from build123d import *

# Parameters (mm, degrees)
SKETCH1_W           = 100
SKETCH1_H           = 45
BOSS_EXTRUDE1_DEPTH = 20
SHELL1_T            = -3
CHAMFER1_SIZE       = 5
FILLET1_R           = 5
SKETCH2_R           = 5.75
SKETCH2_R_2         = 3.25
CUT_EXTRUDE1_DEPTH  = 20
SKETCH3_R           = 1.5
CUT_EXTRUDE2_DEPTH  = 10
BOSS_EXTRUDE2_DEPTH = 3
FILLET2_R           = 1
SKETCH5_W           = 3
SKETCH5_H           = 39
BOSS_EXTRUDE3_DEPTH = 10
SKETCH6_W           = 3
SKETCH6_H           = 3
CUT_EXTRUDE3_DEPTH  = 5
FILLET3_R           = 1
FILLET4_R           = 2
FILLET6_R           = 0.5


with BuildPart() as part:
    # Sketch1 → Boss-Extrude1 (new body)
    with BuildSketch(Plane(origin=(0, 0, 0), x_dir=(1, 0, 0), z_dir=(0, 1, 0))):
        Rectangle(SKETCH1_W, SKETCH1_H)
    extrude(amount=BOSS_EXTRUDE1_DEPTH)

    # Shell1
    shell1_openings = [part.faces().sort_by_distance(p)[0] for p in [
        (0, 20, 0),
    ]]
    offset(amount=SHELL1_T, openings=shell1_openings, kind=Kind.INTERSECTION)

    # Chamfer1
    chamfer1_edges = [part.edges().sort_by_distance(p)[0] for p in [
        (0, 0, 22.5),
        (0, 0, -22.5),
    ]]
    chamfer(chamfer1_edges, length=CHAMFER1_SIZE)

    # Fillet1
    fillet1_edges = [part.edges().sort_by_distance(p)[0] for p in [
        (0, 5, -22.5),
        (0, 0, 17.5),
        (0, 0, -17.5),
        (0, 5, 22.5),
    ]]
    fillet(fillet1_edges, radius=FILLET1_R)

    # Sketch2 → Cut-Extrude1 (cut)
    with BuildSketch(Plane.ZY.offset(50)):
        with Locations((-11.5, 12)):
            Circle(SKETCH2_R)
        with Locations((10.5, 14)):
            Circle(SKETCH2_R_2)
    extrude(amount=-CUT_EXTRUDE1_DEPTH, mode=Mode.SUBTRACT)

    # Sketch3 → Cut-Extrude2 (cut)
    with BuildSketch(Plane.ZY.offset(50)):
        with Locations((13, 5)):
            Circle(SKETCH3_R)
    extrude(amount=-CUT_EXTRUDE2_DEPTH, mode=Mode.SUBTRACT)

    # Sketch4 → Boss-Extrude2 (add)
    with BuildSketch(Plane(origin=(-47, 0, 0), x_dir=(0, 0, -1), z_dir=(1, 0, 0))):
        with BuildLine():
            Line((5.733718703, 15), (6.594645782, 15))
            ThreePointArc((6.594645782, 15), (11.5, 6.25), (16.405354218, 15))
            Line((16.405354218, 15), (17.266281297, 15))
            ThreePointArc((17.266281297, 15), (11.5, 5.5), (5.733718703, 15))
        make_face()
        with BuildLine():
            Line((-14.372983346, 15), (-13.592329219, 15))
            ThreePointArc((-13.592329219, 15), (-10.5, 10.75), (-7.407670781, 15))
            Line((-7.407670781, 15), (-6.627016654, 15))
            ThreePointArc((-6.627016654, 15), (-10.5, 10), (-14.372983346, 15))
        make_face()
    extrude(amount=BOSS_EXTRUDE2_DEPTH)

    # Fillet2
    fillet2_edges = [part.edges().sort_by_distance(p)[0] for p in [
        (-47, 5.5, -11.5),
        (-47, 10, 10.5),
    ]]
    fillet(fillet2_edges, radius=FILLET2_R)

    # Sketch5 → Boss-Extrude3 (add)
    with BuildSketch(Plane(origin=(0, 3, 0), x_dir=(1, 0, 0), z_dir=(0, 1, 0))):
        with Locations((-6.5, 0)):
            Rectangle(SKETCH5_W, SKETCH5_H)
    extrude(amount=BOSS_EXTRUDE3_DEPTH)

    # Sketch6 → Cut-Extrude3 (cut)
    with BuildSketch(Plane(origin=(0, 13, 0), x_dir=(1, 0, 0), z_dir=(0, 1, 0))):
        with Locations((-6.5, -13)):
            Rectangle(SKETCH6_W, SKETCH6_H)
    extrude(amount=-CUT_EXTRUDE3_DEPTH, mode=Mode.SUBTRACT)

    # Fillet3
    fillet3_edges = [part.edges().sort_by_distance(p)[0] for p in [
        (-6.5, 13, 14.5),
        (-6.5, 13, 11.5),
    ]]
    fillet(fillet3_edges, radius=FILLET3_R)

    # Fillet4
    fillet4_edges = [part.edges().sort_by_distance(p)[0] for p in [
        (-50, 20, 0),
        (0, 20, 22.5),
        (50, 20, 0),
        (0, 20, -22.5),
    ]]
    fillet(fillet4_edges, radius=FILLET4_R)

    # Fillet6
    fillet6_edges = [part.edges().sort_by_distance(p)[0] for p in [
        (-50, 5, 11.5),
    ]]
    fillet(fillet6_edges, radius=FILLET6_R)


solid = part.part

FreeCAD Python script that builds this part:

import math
import FreeCAD as App
import Part
import Sketcher
Q = App.Units.Quantity


def edges_at(feature, points):
    """Names of the edges that pass closest to the given points."""
    edges = feature.Shape.Edges
    near = lambda p: min(range(len(edges)), key=lambda i: edges[i].distToShape(Part.Vertex(*p))[0])
    return sorted({f"Edge{near(p) + 1}" for p in points})


def faces_at(feature, points):
    """Names of the faces that lie closest to the given points."""
    faces = feature.Shape.Faces
    near = lambda p: min(range(len(faces)), key=lambda i: faces[i].distToShape(Part.Vertex(*p))[0])
    return sorted({f"Face{near(p) + 1}" for p in points})

doc = App.newDocument("Part")
params = doc.addObject("Spreadsheet::Sheet", "Params")
for row, (alias, value) in enumerate([
    ("sketch1_width", "100 mm"),
    ("sketch1_height", "45 mm"),
    ("pad1_length", "20 mm"),
    ("thickness_wall", "3 mm"),
    ("chamfer_size", "5 mm"),
    ("fillet_radius", "5 mm"),
    ("sketch2_diameter", "11.5 mm"),
    ("sketch2_diameter2", "6.5 mm"),
    ("pocket1_length", "20 mm"),
    ("sketch3_diameter", "3 mm"),
    ("pocket2_length", "10 mm"),
    ("sketch4_radius", "4 mm"),
    ("sketch4_radius2", "6.5 mm"),
    ("sketch4_radius3", "5.75 mm"),
    ("sketch4_radius4", "3.25 mm"),
    ("pad2_length", "3 mm"),
    ("fillet2_radius", "1 mm"),
    ("sketch5_width", "3 mm"),
    ("sketch5_height", "39 mm"),
    ("pad3_length", "10 mm"),
    ("sketch6_width", "3 mm"),
    ("pocket3_length", "5 mm"),
    ("fillet3_radius", "1 mm"),
    ("fillet4_radius", "2 mm"),
    ("fillet5_radius", "0.5 mm"),
], start=1):
    params.set(f"A{row}", alias)
    params.set(f"B{row}", "=" + value)
    params.setAlias(f"B{row}", alias)

body = doc.addObject("PartDesign::Body", "Body")

# Sketch on XZ plane
sketch1 = body.newObject("Sketcher::SketchObject", "Sketch")
sketch1.AttachmentSupport = (doc.getObject("XZ_Plane"), [""])
sketch1.MapMode = "FlatFace"
sketch1.addGeometry([
    Part.LineSegment(App.Vector(-50, -22, 0), App.Vector(-50, 22, 0)),
    Part.LineSegment(App.Vector(-50, 22, 0), App.Vector(50, 22, 0)),
    Part.LineSegment(App.Vector(50, 22, 0), App.Vector(50, -22, 0)),
    Part.LineSegment(App.Vector(50, -22, 0), App.Vector(-50, -22, 0)),
], False)
sketch1.addConstraint([
    Sketcher.Constraint("Coincident", 0, 2, 1, 1),
    Sketcher.Constraint("Coincident", 1, 2, 2, 1),
    Sketcher.Constraint("Coincident", 2, 2, 3, 1),
    Sketcher.Constraint("Coincident", 3, 2, 0, 1),
    Sketcher.Constraint("Vertical", 0),
    Sketcher.Constraint("Horizontal", 1),
    Sketcher.Constraint("Vertical", 2),
    Sketcher.Constraint("Horizontal", 3),
    Sketcher.Constraint("Symmetric", 0, 2, 2, 2, -1, 1),
    Sketcher.Constraint("DistanceX", 1, 1, 1, 2, Q("100 mm")),
    Sketcher.Constraint("DistanceY", 0, 1, 0, 2, Q("45 mm")),
])
sketch1.setExpression("Constraints[9]", "Params.sketch1_width")
sketch1.setExpression("Constraints[10]", "Params.sketch1_height")
pad1 = body.newObject("PartDesign::Pad", "Pad")
pad1.Profile = sketch1
pad1.setExpression("Length", "Params.pad1_length")
pad1.Reversed = True
doc.recompute()

thickness = body.newObject("PartDesign::Thickness", "Thickness")
thickness.Base = (pad1, faces_at(pad1, [(0, 20, 0)]))
thickness.setExpression("Value", "Params.thickness_wall")
thickness.Reversed = True
thickness.Join = "Intersection"
doc.recompute()

chamfer = body.newObject("PartDesign::Chamfer", "Chamfer")
chamfer.Base = (thickness, edges_at(thickness, [(0, 0, 22.5), (0, 0, -22.5)]))
chamfer.setExpression("Size", "Params.chamfer_size")
doc.recompute()

fillet = body.newObject("PartDesign::Fillet", "Fillet")
fillet.Base = (chamfer, edges_at(chamfer, [
    (0, 5, -22.5),
    (0, 0, 17.5),
    (0, 0, -17.5),
    (0, 5, 22.5),
]))
fillet.setExpression("Radius", "Params.fillet_radius")

# Sketch on YZ plane
sketch2 = body.newObject("Sketcher::SketchObject", "Sketch001")
sketch2.AttachmentSupport = (doc.getObject("YZ_Plane"), [""])
sketch2.MapMode = "FlatFace"
sketch2.AttachmentOffset = App.Placement(App.Vector(0, 0, -50), App.Rotation())
sketch2.addGeometry([
    Part.Circle(App.Vector(12, -11.5, 0), App.Vector(0, 0, 1), 5.8),
    Part.Circle(App.Vector(14, 10.5, 0), App.Vector(0, 0, 1), 3.2),
], False)
sketch2.addConstraint([
    Sketcher.Constraint("Diameter", 0, Q("11.5 mm")),
    Sketcher.Constraint("Diameter", 1, Q("6.5 mm")),
    Sketcher.Constraint("DistanceX", -1, 1, 0, 3, Q("12 mm")),
    Sketcher.Constraint("DistanceX", -1, 1, 1, 3, Q("14 mm")),
    Sketcher.Constraint("DistanceY", 0, 3, 1, 3, Q("22 mm")),
    Sketcher.Constraint("DistanceY", 0, 3, -1, 1, Q("11.5 mm")),
])
sketch2.setExpression("Constraints[0]", "Params.sketch2_diameter")
sketch2.setExpression("Constraints[1]", "Params.sketch2_diameter2")
pocket1 = body.newObject("PartDesign::Pocket", "Pocket")
pocket1.Profile = sketch2
pocket1.setExpression("Length", "Params.pocket1_length")
pocket1.Reversed = True

# Sketch on YZ plane
sketch3 = body.newObject("Sketcher::SketchObject", "Sketch002")
sketch3.AttachmentSupport = (doc.getObject("YZ_Plane"), [""])
sketch3.MapMode = "FlatFace"
sketch3.AttachmentOffset = App.Placement(App.Vector(0, 0, -50), App.Rotation())
sketch3.addGeometry(Part.Circle(App.Vector(5, 13, 0), App.Vector(0, 0, 1), 1.5), False)
sketch3.addConstraint([
    Sketcher.Constraint("Diameter", 0, Q("3 mm")),
    Sketcher.Constraint("DistanceX", -1, 1, 0, 3, Q("5 mm")),
    Sketcher.Constraint("DistanceY", -1, 1, 0, 3, Q("13 mm")),
])
sketch3.setExpression("Constraints[0]", "Params.sketch3_diameter")
pocket2 = body.newObject("PartDesign::Pocket", "Pocket001")
pocket2.Profile = sketch3
pocket2.setExpression("Length", "Params.pocket2_length")
pocket2.Reversed = True

# Sketch on YZ plane
sketch4 = body.newObject("Sketcher::SketchObject", "Sketch003")
sketch4.AttachmentSupport = (doc.getObject("YZ_Plane"), [""])
sketch4.MapMode = "FlatFace"
sketch4.AttachmentOffset = App.Placement(App.Vector(0, 0, -47), App.Rotation())
sketch4.addGeometry([
    Part.LineSegment(App.Vector(15, -6.6, 0), App.Vector(15, -5.7, 0)),  # 0
    Part.ArcOfCircle(Part.Circle(App.Vector(12, -11.5, 0), App.Vector(0, 0, 1), 6.5), math.radians(63), math.radians(297)),  # 1
    Part.LineSegment(App.Vector(15, -17.3, 0), App.Vector(15, -16.4, 0)),  # 2
    Part.ArcOfCircle(Part.Circle(App.Vector(12, -11.5, 0), App.Vector(0, 0, 1), 5.8), math.radians(59), math.radians(301)),  # 3
    Part.LineSegment(App.Vector(15, 13.6, 0), App.Vector(15, 14.4, 0)),  # 4
    Part.ArcOfCircle(Part.Circle(App.Vector(14, 10.5, 0), App.Vector(0, 0, 1), 4), math.radians(76), math.radians(284)),  # 5
    Part.LineSegment(App.Vector(15, 6.6, 0), App.Vector(15, 7.4, 0)),  # 6
    Part.ArcOfCircle(Part.Circle(App.Vector(14, 10.5, 0), App.Vector(0, 0, 1), 3.2), math.radians(72), math.radians(288)),  # 7
], False)
sketch4.addConstraint([
    Sketcher.Constraint("Coincident", 0, 2, 1, 1),
    Sketcher.Constraint("Coincident", 1, 2, 2, 1),
    Sketcher.Constraint("Coincident", 2, 2, 3, 2),
    Sketcher.Constraint("Coincident", 3, 1, 0, 1),
    Sketcher.Constraint("Coincident", 4, 2, 5, 1),
    Sketcher.Constraint("Coincident", 5, 2, 6, 1),
    Sketcher.Constraint("Coincident", 6, 2, 7, 2),
    Sketcher.Constraint("Coincident", 7, 1, 4, 1),
    Sketcher.Constraint("Vertical", 0),
    Sketcher.Constraint("Vertical", 2),
    Sketcher.Constraint("Vertical", 4),
    Sketcher.Constraint("Vertical", 6),
    Sketcher.Constraint("Coincident", 3, 3, 1, 3),
    Sketcher.Constraint("Coincident", 7, 3, 5, 3),
    Sketcher.Constraint("Vertical", 0, 2, 1, 2),
    Sketcher.Constraint("Vertical", 3, 1, 4, 2),
    Sketcher.Constraint("Vertical", 4, 2, 5, 2),
    Sketcher.Constraint("Radius", 5, Q("4 mm")),
    Sketcher.Constraint("Radius", 1, Q("6.5 mm")),
    Sketcher.Constraint("Radius", 3, Q("5.75 mm")),
    Sketcher.Constraint("Radius", 7, Q("3.25 mm")),
    Sketcher.Constraint("DistanceX", -1, 1, 1, 3, Q("12 mm")),
    Sketcher.Constraint("DistanceX", -1, 1, 5, 3, Q("14 mm")),
    Sketcher.Constraint("DistanceX", -1, 1, 0, 2, Q("15 mm")),
    Sketcher.Constraint("DistanceY", 1, 3, 5, 3, Q("22 mm")),
    Sketcher.Constraint("DistanceY", 1, 3, -1, 1, Q("11.5 mm")),
])
sketch4.setExpression("Constraints[17]", "Params.sketch4_radius")
sketch4.setExpression("Constraints[18]", "Params.sketch4_radius2")
sketch4.setExpression("Constraints[19]", "Params.sketch4_radius3")
sketch4.setExpression("Constraints[20]", "Params.sketch4_radius4")
pad2 = body.newObject("PartDesign::Pad", "Pad001")
pad2.Profile = sketch4
pad2.setExpression("Length", "Params.pad2_length")
doc.recompute()

fillet2 = body.newObject("PartDesign::Fillet", "Fillet001")
fillet2.Base = (pad2, edges_at(pad2, [(-47, 5.5, -11.5), (-47, 10, 10.5)]))
fillet2.setExpression("Radius", "Params.fillet2_radius")

# Sketch on XZ plane
sketch5 = body.newObject("Sketcher::SketchObject", "Sketch004")
sketch5.AttachmentSupport = (doc.getObject("XZ_Plane"), [""])
sketch5.MapMode = "FlatFace"
sketch5.AttachmentOffset = App.Placement(App.Vector(0, 0, -3), App.Rotation())
sketch5.addGeometry([
    Part.LineSegment(App.Vector(-8, -19.5, 0), App.Vector(-8, 19.5, 0)),
    Part.LineSegment(App.Vector(-8, 19.5, 0), App.Vector(-5, 19.5, 0)),
    Part.LineSegment(App.Vector(-5, 19.5, 0), App.Vector(-5, -19.5, 0)),
    Part.LineSegment(App.Vector(-5, -19.5, 0), App.Vector(-8, -19.5, 0)),
], False)
sketch5.addConstraint([
    Sketcher.Constraint("Coincident", 0, 2, 1, 1),
    Sketcher.Constraint("Coincident", 1, 2, 2, 1),
    Sketcher.Constraint("Coincident", 2, 2, 3, 1),
    Sketcher.Constraint("Coincident", 3, 2, 0, 1),
    Sketcher.Constraint("Vertical", 0),
    Sketcher.Constraint("Horizontal", 1),
    Sketcher.Constraint("Vertical", 2),
    Sketcher.Constraint("Horizontal", 3),
    Sketcher.Constraint("DistanceX", 1, 1, 1, 2, Q("3 mm")),
    Sketcher.Constraint("DistanceY", 0, 1, 0, 2, Q("39 mm")),
    Sketcher.Constraint("DistanceX", 0, 2, -1, 1, Q("8 mm")),
    Sketcher.Constraint("DistanceY", -1, 1, 0, 2, Q("19.5 mm")),
])
sketch5.setExpression("Constraints[8]", "Params.sketch5_width")
sketch5.setExpression("Constraints[9]", "Params.sketch5_height")
pad3 = body.newObject("PartDesign::Pad", "Pad002")
pad3.Profile = sketch5
pad3.setExpression("Length", "Params.pad3_length")
pad3.Reversed = True

# Sketch on XZ plane
sketch6 = body.newObject("Sketcher::SketchObject", "Sketch005")
sketch6.AttachmentSupport = (doc.getObject("XZ_Plane"), [""])
sketch6.MapMode = "FlatFace"
sketch6.AttachmentOffset = App.Placement(App.Vector(0, 0, -13), App.Rotation())
sketch6.addGeometry([
    Part.LineSegment(App.Vector(-8, 11.5, 0), App.Vector(-8, 14.5, 0)),
    Part.LineSegment(App.Vector(-8, 14.5, 0), App.Vector(-5, 14.5, 0)),
    Part.LineSegment(App.Vector(-5, 14.5, 0), App.Vector(-5, 11.5, 0)),
    Part.LineSegment(App.Vector(-5, 11.5, 0), App.Vector(-8, 11.5, 0)),
], False)
sketch6.addConstraint([
    Sketcher.Constraint("Coincident", 0, 2, 1, 1),
    Sketcher.Constraint("Coincident", 1, 2, 2, 1),
    Sketcher.Constraint("Coincident", 2, 2, 3, 1),
    Sketcher.Constraint("Coincident", 3, 2, 0, 1),
    Sketcher.Constraint("Vertical", 0),
    Sketcher.Constraint("Horizontal", 1),
    Sketcher.Constraint("Vertical", 2),
    Sketcher.Constraint("Horizontal", 3),
    Sketcher.Constraint("Equal", 3, 0),
    Sketcher.Constraint("DistanceX", 1, 1, 1, 2, Q("3 mm")),
    Sketcher.Constraint("DistanceX", 0, 2, -1, 1, Q("8 mm")),
    Sketcher.Constraint("DistanceY", -1, 1, 0, 2, Q("14.5 mm")),
])
sketch6.setExpression("Constraints[9]", "Params.sketch6_width")
pocket3 = body.newObject("PartDesign::Pocket", "Pocket002")
pocket3.Profile = sketch6
pocket3.setExpression("Length", "Params.pocket3_length")
pocket3.Reversed = True
doc.recompute()

fillet3 = body.newObject("PartDesign::Fillet", "Fillet002")
fillet3.Base = (pocket3, edges_at(pocket3, [(-6.5, 13, 14.5), (-6.5, 13, 11.5)]))
fillet3.setExpression("Radius", "Params.fillet3_radius")
doc.recompute()

fillet4 = body.newObject("PartDesign::Fillet", "Fillet003")
fillet4.Base = (fillet3, edges_at(fillet3, [
    (-50, 20, 0),
    (0, 20, 22.5),
    (50, 20, 0),
    (0, 20, -22.5),
]))
fillet4.setExpression("Radius", "Params.fillet4_radius")
doc.recompute()

fillet5 = body.newObject("PartDesign::Fillet", "Fillet004")
fillet5.Base = (fillet4, edges_at(fillet4, [(-50, 5, 11.5)]))
fillet5.setExpression("Radius", "Params.fillet5_radius")

doc.recompute()
